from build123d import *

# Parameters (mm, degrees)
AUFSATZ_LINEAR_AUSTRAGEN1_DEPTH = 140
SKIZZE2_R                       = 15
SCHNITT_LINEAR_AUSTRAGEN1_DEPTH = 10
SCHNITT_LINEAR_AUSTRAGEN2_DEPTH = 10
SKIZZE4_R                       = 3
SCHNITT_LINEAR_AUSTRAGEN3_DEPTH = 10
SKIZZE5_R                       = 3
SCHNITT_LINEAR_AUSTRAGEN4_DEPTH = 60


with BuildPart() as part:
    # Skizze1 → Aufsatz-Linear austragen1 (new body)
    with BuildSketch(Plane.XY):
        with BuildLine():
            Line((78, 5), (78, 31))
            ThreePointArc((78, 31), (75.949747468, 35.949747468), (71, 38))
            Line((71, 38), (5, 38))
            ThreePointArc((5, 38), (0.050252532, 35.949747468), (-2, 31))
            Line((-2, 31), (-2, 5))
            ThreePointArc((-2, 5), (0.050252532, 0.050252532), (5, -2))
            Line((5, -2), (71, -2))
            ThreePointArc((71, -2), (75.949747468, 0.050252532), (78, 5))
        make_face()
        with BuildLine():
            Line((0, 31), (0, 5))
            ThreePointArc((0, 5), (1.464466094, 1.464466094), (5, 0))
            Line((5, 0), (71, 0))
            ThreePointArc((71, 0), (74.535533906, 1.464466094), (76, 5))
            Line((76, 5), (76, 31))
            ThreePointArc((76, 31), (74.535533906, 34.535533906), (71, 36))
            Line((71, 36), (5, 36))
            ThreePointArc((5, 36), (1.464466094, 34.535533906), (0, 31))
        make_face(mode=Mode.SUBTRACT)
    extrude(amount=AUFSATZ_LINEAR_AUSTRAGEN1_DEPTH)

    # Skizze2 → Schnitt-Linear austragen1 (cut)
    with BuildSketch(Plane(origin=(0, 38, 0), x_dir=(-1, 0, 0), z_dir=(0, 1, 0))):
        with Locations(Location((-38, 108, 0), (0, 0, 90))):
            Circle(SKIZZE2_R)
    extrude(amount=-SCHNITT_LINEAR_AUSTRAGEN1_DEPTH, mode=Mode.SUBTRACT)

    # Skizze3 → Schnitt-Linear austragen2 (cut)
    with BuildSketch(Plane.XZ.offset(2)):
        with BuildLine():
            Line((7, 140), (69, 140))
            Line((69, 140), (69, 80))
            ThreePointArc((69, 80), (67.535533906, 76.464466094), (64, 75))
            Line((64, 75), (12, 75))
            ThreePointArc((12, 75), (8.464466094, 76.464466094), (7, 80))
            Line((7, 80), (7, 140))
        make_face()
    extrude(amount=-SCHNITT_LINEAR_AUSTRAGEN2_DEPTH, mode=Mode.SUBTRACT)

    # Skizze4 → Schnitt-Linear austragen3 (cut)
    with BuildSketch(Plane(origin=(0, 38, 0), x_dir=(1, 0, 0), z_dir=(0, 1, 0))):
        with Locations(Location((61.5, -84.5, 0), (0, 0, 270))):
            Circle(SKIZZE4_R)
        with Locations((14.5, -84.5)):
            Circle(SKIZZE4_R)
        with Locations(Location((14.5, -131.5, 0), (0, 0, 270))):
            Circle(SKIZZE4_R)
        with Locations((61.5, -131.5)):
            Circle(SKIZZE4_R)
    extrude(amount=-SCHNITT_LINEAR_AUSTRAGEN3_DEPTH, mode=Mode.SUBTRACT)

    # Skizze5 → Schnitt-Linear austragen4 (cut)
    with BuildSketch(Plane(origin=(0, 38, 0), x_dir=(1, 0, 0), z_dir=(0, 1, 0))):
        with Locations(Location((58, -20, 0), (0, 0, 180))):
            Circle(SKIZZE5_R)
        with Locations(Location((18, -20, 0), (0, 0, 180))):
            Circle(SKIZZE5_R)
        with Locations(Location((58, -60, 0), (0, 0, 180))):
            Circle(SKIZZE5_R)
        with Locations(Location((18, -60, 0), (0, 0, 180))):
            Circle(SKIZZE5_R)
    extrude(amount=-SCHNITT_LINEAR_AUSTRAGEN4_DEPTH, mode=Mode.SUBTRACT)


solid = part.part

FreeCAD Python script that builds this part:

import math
import FreeCAD as App
import Part
import Sketcher

doc = App.newDocument("Part")
body = doc.addObject("PartDesign::Body", "Body")

sketch1 = doc.addObject("Sketcher::SketchObject", "Sketch")
body.addObject(sketch1)
sketch1.AttachmentSupport = (doc.XY_Plane, [""])
sketch1.MapMode = "FlatFace"
sketch1.addGeometry([
    Part.LineSegment(App.Vector(78, 5, 0), App.Vector(78, 31, 0)),
    Part.ArcOfCircle(Part.Circle(App.Vector(71, 31, 0), App.Vector(0, 0, 1), 7), math.radians(0), math.radians(90)),
    Part.LineSegment(App.Vector(71, 38, 0), App.Vector(5, 38, 0)),
    Part.ArcOfCircle(Part.Circle(App.Vector(5, 31, 0), App.Vector(0, 0, 1), 7), math.radians(90), math.radians(180)),
    Part.LineSegment(App.Vector(-2, 31, 0), App.Vector(-2, 5, 0)),
    Part.ArcOfCircle(Part.Circle(App.Vector(5, 5, 0), App.Vector(0, 0, 1), 7), math.radians(-180), math.radians(-90)),
    Part.LineSegment(App.Vector(5, -2, 0), App.Vector(71, -2, 0)),
    Part.ArcOfCircle(Part.Circle(App.Vector(71, 5, 0), App.Vector(0, 0, 1), 7), math.radians(-90), math.radians(0)),
    Part.LineSegment(App.Vector(0, 5, 0), App.Vector(0, 31, 0)),
    Part.ArcOfCircle(Part.Circle(App.Vector(5, 31, 0), App.Vector(0, 0, 1), 5), math.radians(90), math.radians(180)),
    Part.LineSegment(App.Vector(5, 36, 0), App.Vector(71, 36, 0)),
    Part.ArcOfCircle(Part.Circle(App.Vector(71, 31, 0), App.Vector(0, 0, 1), 5), math.radians(0), math.radians(90)),
    Part.LineSegment(App.Vector(76, 31, 0), App.Vector(76, 5, 0)),
    Part.ArcOfCircle(Part.Circle(App.Vector(71, 5, 0), App.Vector(0, 0, 1), 5), math.radians(-90), math.radians(0)),
    Part.LineSegment(App.Vector(71, 0, 0), App.Vector(5, 0, 0)),
    Part.ArcOfCircle(Part.Circle(App.Vector(5, 5, 0), App.Vector(0, 0, 1), 5), math.radians(180), math.radians(270)),
], False)
sketch1.addConstraint([
    Sketcher.Constraint("Tangent", 0, 2, 1, 1),
    Sketcher.Constraint("Tangent", 1, 2, 2, 1),
    Sketcher.Constraint("Tangent", 2, 2, 3, 1),
    Sketcher.Constraint("Tangent", 3, 2, 4, 1),
    Sketcher.Constraint("Tangent", 4, 2, 5, 1),
    Sketcher.Constraint("Tangent", 5, 2, 6, 1),
    Sketcher.Constraint("Tangent", 6, 2, 7, 1),
    Sketcher.Constraint("Tangent", 7, 2, 0, 1),
    Sketcher.Constraint("Tangent", 8, 2, 9, 2),
    Sketcher.Constraint("Tangent", 9, 1, 10, 1),
    Sketcher.Constraint("Tangent", 10, 2, 11, 2),
    Sketcher.Constraint("Tangent", 11, 1, 12, 1),
    Sketcher.Constraint("Tangent", 12, 2, 13, 2),
    Sketcher.Constraint("Tangent", 13, 1, 14, 1),
    Sketcher.Constraint("Tangent", 14, 2, 15, 2),
    Sketcher.Constraint("Tangent", 15, 1, 8, 1),
    Sketcher.Constraint("Vertical", 0),
    Sketcher.Constraint("Horizontal", 2),
    Sketcher.Constraint("Vertical", 4),
    Sketcher.Constraint("Horizontal", 6),
    Sketcher.Constraint("Vertical", 8),
    Sketcher.Constraint("Horizontal", 10),
    Sketcher.Constraint("Vertical", 12),
    Sketcher.Constraint("Horizontal", 14),
    Sketcher.Constraint("Coincident", 9, 3, 3, 3),
    Sketcher.Constraint("Coincident", 11, 3, 1, 3),
    Sketcher.Constraint("Coincident", 13, 3, 7, 3),
    Sketcher.Constraint("Equal", 1, 3),
    Sketcher.Constraint("Equal", 3, 5),
    Sketcher.Constraint("Equal", 5, 7),
    Sketcher.Constraint("Equal", 13, 15),
    Sketcher.Constraint("PointOnObject", 8, 2, -2),
    Sketcher.Constraint("PointOnObject", 13, 1, -1),
    Sketcher.Constraint("Radius", 1, 7.0),
    Sketcher.Constraint("Radius", 9, 5.0),
    Sketcher.Constraint("DistanceX", 2, 2, 2, 1, 66.0),
    Sketcher.Constraint("DistanceY", 0, 1, 0, 2, 26.0),
])
pad1 = doc.addObject("PartDesign::Pad", "Pad")
body.addObject(pad1)
pad1.Profile = sketch1
pad1.Length = 140

sketch2 = doc.addObject("Sketcher::SketchObject", "Sketch001")
body.addObject(sketch2)
sketch2.AttachmentSupport = (doc.XZ_Plane, [""])
sketch2.MapMode = "FlatFace"
sketch2.AttachmentOffset = App.Placement(App.Vector(0, 0, -38), App.Rotation())
sketch2.addGeometry(Part.Circle(App.Vector(38, 108, 0), App.Vector(0, 0, 1), 15), False)
sketch2.addConstraint([
    Sketcher.Constraint("Diameter", 0, 30.0),
    Sketcher.Constraint("DistanceX", -1, 1, 0, 3, 38.0),
    Sketcher.Constraint("DistanceY", -1, 1, 0, 3, 108.0),
])
pocket1 = doc.addObject("PartDesign::Pocket", "Pocket")
body.addObject(pocket1)
pocket1.Profile = sketch2
pocket1.Length = 10
pocket1.Reversed = True

sketch3 = doc.addObject("Sketcher::SketchObject", "Sketch002")
body.addObject(sketch3)
sketch3.AttachmentSupport = (doc.XZ_Plane, [""])
sketch3.MapMode = "FlatFace"
sketch3.AttachmentOffset = App.Placement(App.Vector(0, 0, 2), App.Rotation())
sketch3.addGeometry([
    Part.LineSegment(App.Vector(69, 140, 0), App.Vector(7, 140, 0)),
    Part.LineSegment(App.Vector(7, 140, 0), App.Vector(7, 80, 0)),
    Part.ArcOfCircle(Part.Circle(App.Vector(12, 80, 0), App.Vector(0, 0, 1), 5), math.radians(180), math.radians(270)),
    Part.LineSegment(App.Vector(12, 75, 0), App.Vector(64, 75, 0)),
    Part.ArcOfCircle(Part.Circle(App.Vector(64, 80, 0), App.Vector(0, 0, 1), 5), math.radians(-90), math.radians(0)),
    Part.LineSegment(App.Vector(69, 80, 0), App.Vector(69, 140, 0)),
], False)
sketch3.addConstraint([
    Sketcher.Constraint("Coincident", 0, 2, 1, 1),
    Sketcher.Constraint("Tangent", 1, 2, 2, 1),
    Sketcher.Constraint("Tangent", 2, 2, 3, 1),
    Sketcher.Constraint("Tangent", 3, 2, 4, 1),
    Sketcher.Constraint("Tangent", 4, 2, 5, 1),
    Sketcher.Constraint("Coincident", 5, 2, 0, 1),
    Sketcher.Constraint("Horizontal", 0),
    Sketcher.Constraint("Vertical", 1),
    Sketcher.Constraint("Horizontal", 3),
    Sketcher.Constraint("Vertical", 5),
    Sketcher.Constraint("Equal", 2, 4),
    Sketcher.Constraint("Radius", 2, 5.0),
    Sketcher.Constraint("DistanceX", 0, 2, 0, 1, 62.0),
    Sketcher.Constraint("DistanceY", 1, 2, 1, 1, 60.0),
    Sketcher.Constraint("DistanceX", -1, 1, 2, 3, 12.0),
    Sketcher.Constraint("DistanceY", -1, 1, 2, 3, 80.0),
])
pocket2 = doc.addObject("PartDesign::Pocket", "Pocket001")
body.addObject(pocket2)
pocket2.Profile = sketch3
pocket2.Length = 10

sketch4 = doc.addObject("Sketcher::SketchObject", "Sketch003")
body.addObject(sketch4)
sketch4.AttachmentSupport = (doc.XZ_Plane, [""])
sketch4.MapMode = "FlatFace"
sketch4.AttachmentOffset = App.Placement(App.Vector(0, 0, -38), App.Rotation())
sketch4.addGeometry([
    Part.Circle(App.Vector(61.5, 84.5, 0), App.Vector(0, 0, 1), 3),
    Part.Circle(App.Vector(14.5, 84.5, 0), App.Vector(0, 0, 1), 3),
    Part.Circle(App.Vector(14.5, 131.5, 0), App.Vector(0, 0, 1), 3),
    Part.Circle(App.Vector(61.5, 131.5, 0), App.Vector(0, 0, 1), 3),
], False)
sketch4.addConstraint([
    Sketcher.Constraint("Equal", 0, 1),
    Sketcher.Constraint("Equal", 1, 2),
    Sketcher.Constraint("Equal", 2, 3),
    Sketcher.Constraint("Horizontal", 0, 3, 1, 3),
    Sketcher.Constraint("Horizontal", 2, 3, 3, 3),
    Sketcher.Constraint("Vertical", 1, 3, 2, 3),
    Sketcher.Constraint("Vertical", 0, 3, 3, 3),
    Sketcher.Constraint("Diameter", 0, 6.0),
    Sketcher.Constraint("DistanceX", 1, 3, 0, 3, 47.0),
    Sketcher.Constraint("DistanceY", 1, 3, 2, 3, 47.0),
    Sketcher.Constraint("DistanceX", -1, 1, 0, 3, 61.5),
    Sketcher.Constraint("DistanceY", -1, 1, 0, 3, 84.5),
])
pocket3 = doc.addObject("PartDesign::Pocket", "Pocket002")
body.addObject(pocket3)
pocket3.Profile = sketch4
pocket3.Length = 10
pocket3.Reversed = True

sketch5 = doc.addObject("Sketcher::SketchObject", "Sketch004")
body.addObject(sketch5)
sketch5.AttachmentSupport = (doc.XZ_Plane, [""])
sketch5.MapMode = "FlatFace"
sketch5.AttachmentOffset = App.Placement(App.Vector(0, 0, -38), App.Rotation())
sketch5.addGeometry([
    Part.Circle(App.Vector(58, 20, 0), App.Vector(0, 0, 1), 3),
    Part.Circle(App.Vector(18, 20, 0), App.Vector(0, 0, 1), 3),
    Part.Circle(App.Vector(58, 60, 0), App.Vector(0, 0, 1), 3),
    Part.Circle(App.Vector(18, 60, 0), App.Vector(0, 0, 1), 3),
], False)
sketch5.addConstraint([
    Sketcher.Constraint("Equal", 0, 1),
    Sketcher.Constraint("Equal", 1, 2),
    Sketcher.Constraint("Equal", 2, 3),
    Sketcher.Constraint("Horizontal", 0, 3, 1, 3),
    Sketcher.Constraint("Horizontal", 2, 3, 3, 3),
    Sketcher.Constraint("Vertical", 0, 3, 2, 3),
    Sketcher.Constraint("Vertical", 1, 3, 3, 3),
    Sketcher.Constraint("Diameter", 0, 6.0),
    Sketcher.Constraint("DistanceX", -1, 1, 0, 3, 58.0),
    Sketcher.Constraint("DistanceY", -1, 1, 0, 3, 20.0),
    Sketcher.Constraint("DistanceX", -1, 1, 1, 3, 18.0),
    Sketcher.Constraint("DistanceY", -1, 1, 2, 3, 60.0),
])
pocket4 = doc.addObject("PartDesign::Pocket", "Pocket003")
body.addObject(pocket4)
pocket4.Profile = sketch5
pocket4.Length = 60
pocket4.Reversed = True

doc.recompute()
